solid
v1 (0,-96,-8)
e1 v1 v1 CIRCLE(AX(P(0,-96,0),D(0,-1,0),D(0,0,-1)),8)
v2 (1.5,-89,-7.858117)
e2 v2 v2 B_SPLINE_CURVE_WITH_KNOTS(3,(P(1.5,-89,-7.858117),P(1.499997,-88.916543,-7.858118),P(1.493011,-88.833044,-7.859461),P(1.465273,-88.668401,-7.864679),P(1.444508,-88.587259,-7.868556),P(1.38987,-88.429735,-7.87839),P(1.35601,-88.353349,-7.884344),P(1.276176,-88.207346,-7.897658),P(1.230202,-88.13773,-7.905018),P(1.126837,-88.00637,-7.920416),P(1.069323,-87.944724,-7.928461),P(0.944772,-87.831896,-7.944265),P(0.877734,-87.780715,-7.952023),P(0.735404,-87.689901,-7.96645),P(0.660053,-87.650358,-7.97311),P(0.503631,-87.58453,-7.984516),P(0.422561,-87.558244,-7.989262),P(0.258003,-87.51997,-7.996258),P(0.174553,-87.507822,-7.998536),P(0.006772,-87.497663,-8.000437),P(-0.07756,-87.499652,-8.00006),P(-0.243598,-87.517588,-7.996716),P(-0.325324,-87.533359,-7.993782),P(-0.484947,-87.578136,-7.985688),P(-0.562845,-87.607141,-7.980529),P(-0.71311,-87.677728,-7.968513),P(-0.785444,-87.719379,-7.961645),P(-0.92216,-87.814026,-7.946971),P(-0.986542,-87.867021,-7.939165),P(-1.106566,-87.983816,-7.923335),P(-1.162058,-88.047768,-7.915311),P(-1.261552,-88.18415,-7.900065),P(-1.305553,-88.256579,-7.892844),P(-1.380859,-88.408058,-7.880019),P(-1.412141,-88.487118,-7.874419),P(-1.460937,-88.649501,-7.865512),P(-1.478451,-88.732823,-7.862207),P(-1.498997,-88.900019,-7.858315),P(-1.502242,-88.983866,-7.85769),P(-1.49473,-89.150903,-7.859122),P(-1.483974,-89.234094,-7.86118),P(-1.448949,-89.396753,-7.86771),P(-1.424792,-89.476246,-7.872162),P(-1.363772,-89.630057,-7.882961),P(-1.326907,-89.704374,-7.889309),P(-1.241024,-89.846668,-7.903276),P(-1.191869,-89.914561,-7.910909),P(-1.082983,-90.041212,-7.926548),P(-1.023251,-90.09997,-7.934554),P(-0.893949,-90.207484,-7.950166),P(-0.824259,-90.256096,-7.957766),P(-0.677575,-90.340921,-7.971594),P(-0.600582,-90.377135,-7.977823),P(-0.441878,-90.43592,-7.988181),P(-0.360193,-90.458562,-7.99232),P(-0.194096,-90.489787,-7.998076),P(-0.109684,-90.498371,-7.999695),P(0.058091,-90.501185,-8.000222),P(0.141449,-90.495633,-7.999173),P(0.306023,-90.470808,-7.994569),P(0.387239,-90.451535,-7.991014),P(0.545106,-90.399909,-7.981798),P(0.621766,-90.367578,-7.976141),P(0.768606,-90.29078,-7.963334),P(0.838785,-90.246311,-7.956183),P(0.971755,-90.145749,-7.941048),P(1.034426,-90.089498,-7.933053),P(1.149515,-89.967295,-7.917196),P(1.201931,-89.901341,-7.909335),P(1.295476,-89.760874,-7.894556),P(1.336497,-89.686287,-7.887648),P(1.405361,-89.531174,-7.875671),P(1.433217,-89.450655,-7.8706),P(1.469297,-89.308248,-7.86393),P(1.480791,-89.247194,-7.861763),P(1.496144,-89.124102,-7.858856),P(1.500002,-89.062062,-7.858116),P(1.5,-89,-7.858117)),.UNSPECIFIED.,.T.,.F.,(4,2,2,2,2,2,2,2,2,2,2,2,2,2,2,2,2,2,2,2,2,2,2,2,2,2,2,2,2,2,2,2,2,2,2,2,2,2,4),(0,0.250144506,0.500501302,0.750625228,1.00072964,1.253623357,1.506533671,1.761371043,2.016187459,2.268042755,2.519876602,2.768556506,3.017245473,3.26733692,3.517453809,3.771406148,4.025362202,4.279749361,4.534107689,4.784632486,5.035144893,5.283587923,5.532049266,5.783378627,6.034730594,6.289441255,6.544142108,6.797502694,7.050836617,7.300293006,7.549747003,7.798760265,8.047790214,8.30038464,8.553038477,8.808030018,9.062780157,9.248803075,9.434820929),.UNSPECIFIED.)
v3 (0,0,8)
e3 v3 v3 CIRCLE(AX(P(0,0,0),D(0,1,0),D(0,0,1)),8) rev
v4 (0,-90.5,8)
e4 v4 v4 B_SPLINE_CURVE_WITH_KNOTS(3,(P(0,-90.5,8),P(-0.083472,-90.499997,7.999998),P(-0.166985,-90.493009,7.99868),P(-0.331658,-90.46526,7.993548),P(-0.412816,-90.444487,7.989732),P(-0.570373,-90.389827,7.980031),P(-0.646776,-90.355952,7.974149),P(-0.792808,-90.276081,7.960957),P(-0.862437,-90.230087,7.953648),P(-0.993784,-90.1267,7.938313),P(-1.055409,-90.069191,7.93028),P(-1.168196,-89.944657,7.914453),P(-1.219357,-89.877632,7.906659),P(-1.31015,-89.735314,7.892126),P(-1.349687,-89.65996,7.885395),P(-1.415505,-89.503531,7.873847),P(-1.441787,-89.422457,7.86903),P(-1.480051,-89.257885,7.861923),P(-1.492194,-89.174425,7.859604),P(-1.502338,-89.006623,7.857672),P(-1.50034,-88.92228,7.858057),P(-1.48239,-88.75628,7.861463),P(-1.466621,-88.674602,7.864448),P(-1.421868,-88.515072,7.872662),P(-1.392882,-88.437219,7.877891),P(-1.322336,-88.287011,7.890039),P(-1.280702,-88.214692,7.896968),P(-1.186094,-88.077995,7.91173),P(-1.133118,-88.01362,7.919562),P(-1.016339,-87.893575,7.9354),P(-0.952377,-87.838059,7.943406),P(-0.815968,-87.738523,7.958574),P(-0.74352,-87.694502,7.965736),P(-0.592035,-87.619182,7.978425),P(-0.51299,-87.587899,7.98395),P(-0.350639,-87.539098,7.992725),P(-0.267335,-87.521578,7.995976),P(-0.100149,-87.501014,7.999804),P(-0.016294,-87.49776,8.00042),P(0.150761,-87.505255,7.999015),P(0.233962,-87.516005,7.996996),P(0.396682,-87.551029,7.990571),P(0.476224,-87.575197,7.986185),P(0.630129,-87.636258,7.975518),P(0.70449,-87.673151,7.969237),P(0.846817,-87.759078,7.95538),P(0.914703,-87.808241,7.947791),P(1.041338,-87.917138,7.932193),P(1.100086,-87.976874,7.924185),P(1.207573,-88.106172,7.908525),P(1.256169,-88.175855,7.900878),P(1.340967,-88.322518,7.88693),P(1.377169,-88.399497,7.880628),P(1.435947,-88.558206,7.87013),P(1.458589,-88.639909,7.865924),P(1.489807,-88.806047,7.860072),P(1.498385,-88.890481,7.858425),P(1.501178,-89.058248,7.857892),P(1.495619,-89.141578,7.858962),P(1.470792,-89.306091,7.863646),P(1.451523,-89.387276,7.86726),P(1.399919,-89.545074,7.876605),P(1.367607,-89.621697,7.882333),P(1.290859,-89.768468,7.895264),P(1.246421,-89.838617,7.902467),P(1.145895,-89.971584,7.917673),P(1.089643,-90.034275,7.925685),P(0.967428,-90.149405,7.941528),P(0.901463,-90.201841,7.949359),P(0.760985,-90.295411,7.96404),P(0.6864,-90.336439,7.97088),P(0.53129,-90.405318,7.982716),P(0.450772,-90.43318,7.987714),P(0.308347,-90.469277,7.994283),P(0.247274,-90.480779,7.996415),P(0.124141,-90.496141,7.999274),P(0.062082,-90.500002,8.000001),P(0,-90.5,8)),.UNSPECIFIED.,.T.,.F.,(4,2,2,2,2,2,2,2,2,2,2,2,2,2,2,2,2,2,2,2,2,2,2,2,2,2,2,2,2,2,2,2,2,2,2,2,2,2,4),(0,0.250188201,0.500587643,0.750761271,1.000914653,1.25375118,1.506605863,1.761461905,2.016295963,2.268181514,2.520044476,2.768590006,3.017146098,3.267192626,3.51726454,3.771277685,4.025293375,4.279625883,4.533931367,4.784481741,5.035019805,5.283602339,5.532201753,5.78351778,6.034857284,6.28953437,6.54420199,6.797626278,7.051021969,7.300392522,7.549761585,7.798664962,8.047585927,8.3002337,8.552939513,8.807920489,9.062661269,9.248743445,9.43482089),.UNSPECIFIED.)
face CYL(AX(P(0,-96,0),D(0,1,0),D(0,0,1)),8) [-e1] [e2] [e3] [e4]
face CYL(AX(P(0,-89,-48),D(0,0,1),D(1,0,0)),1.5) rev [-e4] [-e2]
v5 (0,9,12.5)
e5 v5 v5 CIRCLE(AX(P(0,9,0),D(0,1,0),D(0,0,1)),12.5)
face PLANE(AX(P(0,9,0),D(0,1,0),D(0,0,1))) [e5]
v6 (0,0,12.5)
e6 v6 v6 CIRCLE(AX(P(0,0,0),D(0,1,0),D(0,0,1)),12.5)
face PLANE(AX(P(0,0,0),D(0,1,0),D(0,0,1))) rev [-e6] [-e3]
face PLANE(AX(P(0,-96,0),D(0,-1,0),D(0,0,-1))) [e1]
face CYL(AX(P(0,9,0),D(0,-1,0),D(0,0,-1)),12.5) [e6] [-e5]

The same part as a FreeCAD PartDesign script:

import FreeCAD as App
import Part
import Sketcher
from FreeCAD import Vector
Q = App.Units.Quantity

doc = App.newDocument("Part")
body = doc.addObject("PartDesign::Body", "Body")

# Sketch on XZ plane
sketch1 = doc.addObject("Sketcher::SketchObject", "Sketch")
body.addObject(sketch1)
sketch1.AttachmentSupport = (doc.XZ_Plane, [""])
sketch1.MapMode = "FlatFace"
sketch1.addGeometry(Part.Circle(Vector(0, 0, 0), Vector(0, 0, 1), 12.5), False)
sketch1.addConstraint(Sketcher.Constraint("Coincident", 0, 3, -1, 1))
sketch1.addConstraint(Sketcher.Constraint("Diameter", 0, Q("25 mm")))
pad1 = doc.addObject("PartDesign::Pad", "Pad")
body.addObject(pad1)
pad1.Profile = sketch1
pad1.Length = 9
pad1.Reversed = True

# Sketch on XZ plane
sketch2 = doc.addObject("Sketcher::SketchObject", "Sketch001")
body.addObject(sketch2)
sketch2.AttachmentSupport = (doc.XZ_Plane, [""])
sketch2.MapMode = "FlatFace"
sketch2.addGeometry(Part.Circle(Vector(0, 0, 0), Vector(0, 0, 1), 8), False)
sketch2.addConstraint(Sketcher.Constraint("Coincident", 0, 3, -1, 1))
sketch2.addConstraint(Sketcher.Constraint("Diameter", 0, Q("16 mm")))
pad2 = doc.addObject("PartDesign::Pad", "Pad001")
body.addObject(pad2)
pad2.Profile = sketch2
pad2.Length = 96

# Sketch on XY plane
sketch3 = doc.addObject("Sketcher::SketchObject", "Sketch002")
body.addObject(sketch3)
sketch3.AttachmentSupport = (doc.XY_Plane, [""])
sketch3.MapMode = "FlatFace"
sketch3.addGeometry(Part.Circle(Vector(0, -89, 0), Vector(0, 0, 1), 1.5), False)
sketch3.addConstraint(Sketcher.Constraint("PointOnObject", 0, 3, -2))
sketch3.addConstraint(Sketcher.Constraint("Diameter", 0, Q("3 mm")))
sketch3.addConstraint(Sketcher.Constraint("DistanceY", 0, 3, -1, 1, Q("89 mm")))
pocket1 = doc.addObject("PartDesign::Pocket", "Pocket")
body.addObject(pocket1)
pocket1.Profile = sketch3
pocket1.Length = 96
pocket1.Midplane = True

doc.recompute()
